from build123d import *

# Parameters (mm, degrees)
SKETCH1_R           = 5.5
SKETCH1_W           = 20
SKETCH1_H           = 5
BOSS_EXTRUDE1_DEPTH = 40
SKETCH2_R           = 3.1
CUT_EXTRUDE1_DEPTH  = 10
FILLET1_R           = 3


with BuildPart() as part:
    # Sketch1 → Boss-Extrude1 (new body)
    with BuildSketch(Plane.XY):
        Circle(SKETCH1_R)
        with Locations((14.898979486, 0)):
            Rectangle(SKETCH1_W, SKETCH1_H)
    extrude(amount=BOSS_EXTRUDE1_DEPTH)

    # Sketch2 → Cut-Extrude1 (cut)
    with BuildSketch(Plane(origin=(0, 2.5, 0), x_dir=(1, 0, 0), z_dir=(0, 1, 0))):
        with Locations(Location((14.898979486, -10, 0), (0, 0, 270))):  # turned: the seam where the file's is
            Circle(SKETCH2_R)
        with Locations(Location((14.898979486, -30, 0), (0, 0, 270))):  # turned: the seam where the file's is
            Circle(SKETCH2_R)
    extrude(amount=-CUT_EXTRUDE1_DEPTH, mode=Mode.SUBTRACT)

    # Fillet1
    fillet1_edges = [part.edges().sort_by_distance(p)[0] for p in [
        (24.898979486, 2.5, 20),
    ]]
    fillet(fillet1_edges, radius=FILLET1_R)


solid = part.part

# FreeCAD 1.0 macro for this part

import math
import FreeCAD as App
import Part
import Sketcher
from FreeCAD import Vector


def edges_at(feature, points):
    """Names of the edges that pass closest to the given points."""
    edges = feature.Shape.Edges
    near = lambda p: min(range(len(edges)), key=lambda i: edges[i].distToShape(Part.Vertex(*p))[0])
    return sorted({f"Edge{near(p) + 1}" for p in points})

doc = App.newDocument("Part")
body = doc.addObject("PartDesign::Body", "Body")

sketch1 = doc.addObject("Sketcher::SketchObject", "Sketch")
body.addObject(sketch1)
sketch1.AttachmentSupport = (doc.XY_Plane, [""])
sketch1.MapMode = "FlatFace"
sketch1.addGeometry(Part.LineSegment(Vector(4.898979, -2.5, 0), Vector(24.898979, -2.5, 0)), False)
sketch1.addGeometry(Part.LineSegment(Vector(24.898979, -2.5, 0), Vector(24.898979, 2.5, 0)), False)
sketch1.addGeometry(Part.LineSegment(Vector(24.898979, 2.5, 0), Vector(4.898979, 2.5, 0)), False)
sketch1.addGeometry(Part.ArcOfCircle(Part.Circle(Vector(0, 0, 0), Vector(0, 0, 1), 5.5), math.radians(27.035692), math.radians(332.964308)), False)
sketch1.addConstraint(Sketcher.Constraint("Coincident", 0, 2, 1, 1))
sketch1.addConstraint(Sketcher.Constraint("Coincident", 1, 2, 2, 1))
sketch1.addConstraint(Sketcher.Constraint("Coincident", 2, 2, 3, 1))
sketch1.addConstraint(Sketcher.Constraint("Coincident", 3, 2, 0, 1))
sketch1.addConstraint(Sketcher.Constraint("Horizontal", 0))
sketch1.addConstraint(Sketcher.Constraint("Vertical", 1))
sketch1.addConstraint(Sketcher.Constraint("Horizontal", 2))
sketch1.addConstraint(Sketcher.Constraint("Coincident", 3, 3, -1, 1))
sketch1.addConstraint(Sketcher.Constraint("Vertical", 2, 2, 3, 2))
sketch1.addConstraint(Sketcher.Constraint("Radius", 3, 5.5))
sketch1.addConstraint(Sketcher.Constraint("DistanceX", 0, 1, 0, 2, 20.0))
sketch1.addConstraint(Sketcher.Constraint("DistanceY", 1, 1, 1, 2, 5.0))
pad1 = doc.addObject("PartDesign::Pad", "Pad")
body.addObject(pad1)
pad1.Profile = sketch1
pad1.Length = 40

sketch2 = doc.addObject("Sketcher::SketchObject", "Sketch001")
body.addObject(sketch2)
sketch2.AttachmentSupport = (doc.XZ_Plane, [""])
sketch2.MapMode = "FlatFace"
sketch2.AttachmentOffset = App.Placement(Vector(0, 0, -2.5), App.Rotation())
sketch2.addGeometry(Part.Circle(Vector(14.898979, 10, 0), Vector(0, 0, 1), 3.1), False)
sketch2.addGeometry(Part.Circle(Vector(14.898979, 30, 0), Vector(0, 0, 1), 3.1), False)
sketch2.addConstraint(Sketcher.Constraint("Equal", 0, 1))
sketch2.addConstraint(Sketcher.Constraint("Vertical", 0, 3, 1, 3))
sketch2.addConstraint(Sketcher.Constraint("Diameter", 0, 6.2))
sketch2.addConstraint(Sketcher.Constraint("DistanceY", -1, 1, 0, 3, 10.0))
sketch2.addConstraint(Sketcher.Constraint("DistanceY", -1, 1, 1, 3, 30.0))
sketch2.addConstraint(Sketcher.Constraint("DistanceX", -1, 1, 0, 3, 14.898979))
pocket1 = doc.addObject("PartDesign::Pocket", "Pocket")
body.addObject(pocket1)
pocket1.Profile = sketch2
pocket1.Length = 10
pocket1.Reversed = True
doc.recompute()

fillet = doc.addObject("PartDesign::Fillet", "Fillet")
body.addObject(fillet)
fillet.Base = (pocket1, edges_at(pocket1, [(24.899, 2.5, 20)]))
fillet.Radius = 3

doc.recompute()
